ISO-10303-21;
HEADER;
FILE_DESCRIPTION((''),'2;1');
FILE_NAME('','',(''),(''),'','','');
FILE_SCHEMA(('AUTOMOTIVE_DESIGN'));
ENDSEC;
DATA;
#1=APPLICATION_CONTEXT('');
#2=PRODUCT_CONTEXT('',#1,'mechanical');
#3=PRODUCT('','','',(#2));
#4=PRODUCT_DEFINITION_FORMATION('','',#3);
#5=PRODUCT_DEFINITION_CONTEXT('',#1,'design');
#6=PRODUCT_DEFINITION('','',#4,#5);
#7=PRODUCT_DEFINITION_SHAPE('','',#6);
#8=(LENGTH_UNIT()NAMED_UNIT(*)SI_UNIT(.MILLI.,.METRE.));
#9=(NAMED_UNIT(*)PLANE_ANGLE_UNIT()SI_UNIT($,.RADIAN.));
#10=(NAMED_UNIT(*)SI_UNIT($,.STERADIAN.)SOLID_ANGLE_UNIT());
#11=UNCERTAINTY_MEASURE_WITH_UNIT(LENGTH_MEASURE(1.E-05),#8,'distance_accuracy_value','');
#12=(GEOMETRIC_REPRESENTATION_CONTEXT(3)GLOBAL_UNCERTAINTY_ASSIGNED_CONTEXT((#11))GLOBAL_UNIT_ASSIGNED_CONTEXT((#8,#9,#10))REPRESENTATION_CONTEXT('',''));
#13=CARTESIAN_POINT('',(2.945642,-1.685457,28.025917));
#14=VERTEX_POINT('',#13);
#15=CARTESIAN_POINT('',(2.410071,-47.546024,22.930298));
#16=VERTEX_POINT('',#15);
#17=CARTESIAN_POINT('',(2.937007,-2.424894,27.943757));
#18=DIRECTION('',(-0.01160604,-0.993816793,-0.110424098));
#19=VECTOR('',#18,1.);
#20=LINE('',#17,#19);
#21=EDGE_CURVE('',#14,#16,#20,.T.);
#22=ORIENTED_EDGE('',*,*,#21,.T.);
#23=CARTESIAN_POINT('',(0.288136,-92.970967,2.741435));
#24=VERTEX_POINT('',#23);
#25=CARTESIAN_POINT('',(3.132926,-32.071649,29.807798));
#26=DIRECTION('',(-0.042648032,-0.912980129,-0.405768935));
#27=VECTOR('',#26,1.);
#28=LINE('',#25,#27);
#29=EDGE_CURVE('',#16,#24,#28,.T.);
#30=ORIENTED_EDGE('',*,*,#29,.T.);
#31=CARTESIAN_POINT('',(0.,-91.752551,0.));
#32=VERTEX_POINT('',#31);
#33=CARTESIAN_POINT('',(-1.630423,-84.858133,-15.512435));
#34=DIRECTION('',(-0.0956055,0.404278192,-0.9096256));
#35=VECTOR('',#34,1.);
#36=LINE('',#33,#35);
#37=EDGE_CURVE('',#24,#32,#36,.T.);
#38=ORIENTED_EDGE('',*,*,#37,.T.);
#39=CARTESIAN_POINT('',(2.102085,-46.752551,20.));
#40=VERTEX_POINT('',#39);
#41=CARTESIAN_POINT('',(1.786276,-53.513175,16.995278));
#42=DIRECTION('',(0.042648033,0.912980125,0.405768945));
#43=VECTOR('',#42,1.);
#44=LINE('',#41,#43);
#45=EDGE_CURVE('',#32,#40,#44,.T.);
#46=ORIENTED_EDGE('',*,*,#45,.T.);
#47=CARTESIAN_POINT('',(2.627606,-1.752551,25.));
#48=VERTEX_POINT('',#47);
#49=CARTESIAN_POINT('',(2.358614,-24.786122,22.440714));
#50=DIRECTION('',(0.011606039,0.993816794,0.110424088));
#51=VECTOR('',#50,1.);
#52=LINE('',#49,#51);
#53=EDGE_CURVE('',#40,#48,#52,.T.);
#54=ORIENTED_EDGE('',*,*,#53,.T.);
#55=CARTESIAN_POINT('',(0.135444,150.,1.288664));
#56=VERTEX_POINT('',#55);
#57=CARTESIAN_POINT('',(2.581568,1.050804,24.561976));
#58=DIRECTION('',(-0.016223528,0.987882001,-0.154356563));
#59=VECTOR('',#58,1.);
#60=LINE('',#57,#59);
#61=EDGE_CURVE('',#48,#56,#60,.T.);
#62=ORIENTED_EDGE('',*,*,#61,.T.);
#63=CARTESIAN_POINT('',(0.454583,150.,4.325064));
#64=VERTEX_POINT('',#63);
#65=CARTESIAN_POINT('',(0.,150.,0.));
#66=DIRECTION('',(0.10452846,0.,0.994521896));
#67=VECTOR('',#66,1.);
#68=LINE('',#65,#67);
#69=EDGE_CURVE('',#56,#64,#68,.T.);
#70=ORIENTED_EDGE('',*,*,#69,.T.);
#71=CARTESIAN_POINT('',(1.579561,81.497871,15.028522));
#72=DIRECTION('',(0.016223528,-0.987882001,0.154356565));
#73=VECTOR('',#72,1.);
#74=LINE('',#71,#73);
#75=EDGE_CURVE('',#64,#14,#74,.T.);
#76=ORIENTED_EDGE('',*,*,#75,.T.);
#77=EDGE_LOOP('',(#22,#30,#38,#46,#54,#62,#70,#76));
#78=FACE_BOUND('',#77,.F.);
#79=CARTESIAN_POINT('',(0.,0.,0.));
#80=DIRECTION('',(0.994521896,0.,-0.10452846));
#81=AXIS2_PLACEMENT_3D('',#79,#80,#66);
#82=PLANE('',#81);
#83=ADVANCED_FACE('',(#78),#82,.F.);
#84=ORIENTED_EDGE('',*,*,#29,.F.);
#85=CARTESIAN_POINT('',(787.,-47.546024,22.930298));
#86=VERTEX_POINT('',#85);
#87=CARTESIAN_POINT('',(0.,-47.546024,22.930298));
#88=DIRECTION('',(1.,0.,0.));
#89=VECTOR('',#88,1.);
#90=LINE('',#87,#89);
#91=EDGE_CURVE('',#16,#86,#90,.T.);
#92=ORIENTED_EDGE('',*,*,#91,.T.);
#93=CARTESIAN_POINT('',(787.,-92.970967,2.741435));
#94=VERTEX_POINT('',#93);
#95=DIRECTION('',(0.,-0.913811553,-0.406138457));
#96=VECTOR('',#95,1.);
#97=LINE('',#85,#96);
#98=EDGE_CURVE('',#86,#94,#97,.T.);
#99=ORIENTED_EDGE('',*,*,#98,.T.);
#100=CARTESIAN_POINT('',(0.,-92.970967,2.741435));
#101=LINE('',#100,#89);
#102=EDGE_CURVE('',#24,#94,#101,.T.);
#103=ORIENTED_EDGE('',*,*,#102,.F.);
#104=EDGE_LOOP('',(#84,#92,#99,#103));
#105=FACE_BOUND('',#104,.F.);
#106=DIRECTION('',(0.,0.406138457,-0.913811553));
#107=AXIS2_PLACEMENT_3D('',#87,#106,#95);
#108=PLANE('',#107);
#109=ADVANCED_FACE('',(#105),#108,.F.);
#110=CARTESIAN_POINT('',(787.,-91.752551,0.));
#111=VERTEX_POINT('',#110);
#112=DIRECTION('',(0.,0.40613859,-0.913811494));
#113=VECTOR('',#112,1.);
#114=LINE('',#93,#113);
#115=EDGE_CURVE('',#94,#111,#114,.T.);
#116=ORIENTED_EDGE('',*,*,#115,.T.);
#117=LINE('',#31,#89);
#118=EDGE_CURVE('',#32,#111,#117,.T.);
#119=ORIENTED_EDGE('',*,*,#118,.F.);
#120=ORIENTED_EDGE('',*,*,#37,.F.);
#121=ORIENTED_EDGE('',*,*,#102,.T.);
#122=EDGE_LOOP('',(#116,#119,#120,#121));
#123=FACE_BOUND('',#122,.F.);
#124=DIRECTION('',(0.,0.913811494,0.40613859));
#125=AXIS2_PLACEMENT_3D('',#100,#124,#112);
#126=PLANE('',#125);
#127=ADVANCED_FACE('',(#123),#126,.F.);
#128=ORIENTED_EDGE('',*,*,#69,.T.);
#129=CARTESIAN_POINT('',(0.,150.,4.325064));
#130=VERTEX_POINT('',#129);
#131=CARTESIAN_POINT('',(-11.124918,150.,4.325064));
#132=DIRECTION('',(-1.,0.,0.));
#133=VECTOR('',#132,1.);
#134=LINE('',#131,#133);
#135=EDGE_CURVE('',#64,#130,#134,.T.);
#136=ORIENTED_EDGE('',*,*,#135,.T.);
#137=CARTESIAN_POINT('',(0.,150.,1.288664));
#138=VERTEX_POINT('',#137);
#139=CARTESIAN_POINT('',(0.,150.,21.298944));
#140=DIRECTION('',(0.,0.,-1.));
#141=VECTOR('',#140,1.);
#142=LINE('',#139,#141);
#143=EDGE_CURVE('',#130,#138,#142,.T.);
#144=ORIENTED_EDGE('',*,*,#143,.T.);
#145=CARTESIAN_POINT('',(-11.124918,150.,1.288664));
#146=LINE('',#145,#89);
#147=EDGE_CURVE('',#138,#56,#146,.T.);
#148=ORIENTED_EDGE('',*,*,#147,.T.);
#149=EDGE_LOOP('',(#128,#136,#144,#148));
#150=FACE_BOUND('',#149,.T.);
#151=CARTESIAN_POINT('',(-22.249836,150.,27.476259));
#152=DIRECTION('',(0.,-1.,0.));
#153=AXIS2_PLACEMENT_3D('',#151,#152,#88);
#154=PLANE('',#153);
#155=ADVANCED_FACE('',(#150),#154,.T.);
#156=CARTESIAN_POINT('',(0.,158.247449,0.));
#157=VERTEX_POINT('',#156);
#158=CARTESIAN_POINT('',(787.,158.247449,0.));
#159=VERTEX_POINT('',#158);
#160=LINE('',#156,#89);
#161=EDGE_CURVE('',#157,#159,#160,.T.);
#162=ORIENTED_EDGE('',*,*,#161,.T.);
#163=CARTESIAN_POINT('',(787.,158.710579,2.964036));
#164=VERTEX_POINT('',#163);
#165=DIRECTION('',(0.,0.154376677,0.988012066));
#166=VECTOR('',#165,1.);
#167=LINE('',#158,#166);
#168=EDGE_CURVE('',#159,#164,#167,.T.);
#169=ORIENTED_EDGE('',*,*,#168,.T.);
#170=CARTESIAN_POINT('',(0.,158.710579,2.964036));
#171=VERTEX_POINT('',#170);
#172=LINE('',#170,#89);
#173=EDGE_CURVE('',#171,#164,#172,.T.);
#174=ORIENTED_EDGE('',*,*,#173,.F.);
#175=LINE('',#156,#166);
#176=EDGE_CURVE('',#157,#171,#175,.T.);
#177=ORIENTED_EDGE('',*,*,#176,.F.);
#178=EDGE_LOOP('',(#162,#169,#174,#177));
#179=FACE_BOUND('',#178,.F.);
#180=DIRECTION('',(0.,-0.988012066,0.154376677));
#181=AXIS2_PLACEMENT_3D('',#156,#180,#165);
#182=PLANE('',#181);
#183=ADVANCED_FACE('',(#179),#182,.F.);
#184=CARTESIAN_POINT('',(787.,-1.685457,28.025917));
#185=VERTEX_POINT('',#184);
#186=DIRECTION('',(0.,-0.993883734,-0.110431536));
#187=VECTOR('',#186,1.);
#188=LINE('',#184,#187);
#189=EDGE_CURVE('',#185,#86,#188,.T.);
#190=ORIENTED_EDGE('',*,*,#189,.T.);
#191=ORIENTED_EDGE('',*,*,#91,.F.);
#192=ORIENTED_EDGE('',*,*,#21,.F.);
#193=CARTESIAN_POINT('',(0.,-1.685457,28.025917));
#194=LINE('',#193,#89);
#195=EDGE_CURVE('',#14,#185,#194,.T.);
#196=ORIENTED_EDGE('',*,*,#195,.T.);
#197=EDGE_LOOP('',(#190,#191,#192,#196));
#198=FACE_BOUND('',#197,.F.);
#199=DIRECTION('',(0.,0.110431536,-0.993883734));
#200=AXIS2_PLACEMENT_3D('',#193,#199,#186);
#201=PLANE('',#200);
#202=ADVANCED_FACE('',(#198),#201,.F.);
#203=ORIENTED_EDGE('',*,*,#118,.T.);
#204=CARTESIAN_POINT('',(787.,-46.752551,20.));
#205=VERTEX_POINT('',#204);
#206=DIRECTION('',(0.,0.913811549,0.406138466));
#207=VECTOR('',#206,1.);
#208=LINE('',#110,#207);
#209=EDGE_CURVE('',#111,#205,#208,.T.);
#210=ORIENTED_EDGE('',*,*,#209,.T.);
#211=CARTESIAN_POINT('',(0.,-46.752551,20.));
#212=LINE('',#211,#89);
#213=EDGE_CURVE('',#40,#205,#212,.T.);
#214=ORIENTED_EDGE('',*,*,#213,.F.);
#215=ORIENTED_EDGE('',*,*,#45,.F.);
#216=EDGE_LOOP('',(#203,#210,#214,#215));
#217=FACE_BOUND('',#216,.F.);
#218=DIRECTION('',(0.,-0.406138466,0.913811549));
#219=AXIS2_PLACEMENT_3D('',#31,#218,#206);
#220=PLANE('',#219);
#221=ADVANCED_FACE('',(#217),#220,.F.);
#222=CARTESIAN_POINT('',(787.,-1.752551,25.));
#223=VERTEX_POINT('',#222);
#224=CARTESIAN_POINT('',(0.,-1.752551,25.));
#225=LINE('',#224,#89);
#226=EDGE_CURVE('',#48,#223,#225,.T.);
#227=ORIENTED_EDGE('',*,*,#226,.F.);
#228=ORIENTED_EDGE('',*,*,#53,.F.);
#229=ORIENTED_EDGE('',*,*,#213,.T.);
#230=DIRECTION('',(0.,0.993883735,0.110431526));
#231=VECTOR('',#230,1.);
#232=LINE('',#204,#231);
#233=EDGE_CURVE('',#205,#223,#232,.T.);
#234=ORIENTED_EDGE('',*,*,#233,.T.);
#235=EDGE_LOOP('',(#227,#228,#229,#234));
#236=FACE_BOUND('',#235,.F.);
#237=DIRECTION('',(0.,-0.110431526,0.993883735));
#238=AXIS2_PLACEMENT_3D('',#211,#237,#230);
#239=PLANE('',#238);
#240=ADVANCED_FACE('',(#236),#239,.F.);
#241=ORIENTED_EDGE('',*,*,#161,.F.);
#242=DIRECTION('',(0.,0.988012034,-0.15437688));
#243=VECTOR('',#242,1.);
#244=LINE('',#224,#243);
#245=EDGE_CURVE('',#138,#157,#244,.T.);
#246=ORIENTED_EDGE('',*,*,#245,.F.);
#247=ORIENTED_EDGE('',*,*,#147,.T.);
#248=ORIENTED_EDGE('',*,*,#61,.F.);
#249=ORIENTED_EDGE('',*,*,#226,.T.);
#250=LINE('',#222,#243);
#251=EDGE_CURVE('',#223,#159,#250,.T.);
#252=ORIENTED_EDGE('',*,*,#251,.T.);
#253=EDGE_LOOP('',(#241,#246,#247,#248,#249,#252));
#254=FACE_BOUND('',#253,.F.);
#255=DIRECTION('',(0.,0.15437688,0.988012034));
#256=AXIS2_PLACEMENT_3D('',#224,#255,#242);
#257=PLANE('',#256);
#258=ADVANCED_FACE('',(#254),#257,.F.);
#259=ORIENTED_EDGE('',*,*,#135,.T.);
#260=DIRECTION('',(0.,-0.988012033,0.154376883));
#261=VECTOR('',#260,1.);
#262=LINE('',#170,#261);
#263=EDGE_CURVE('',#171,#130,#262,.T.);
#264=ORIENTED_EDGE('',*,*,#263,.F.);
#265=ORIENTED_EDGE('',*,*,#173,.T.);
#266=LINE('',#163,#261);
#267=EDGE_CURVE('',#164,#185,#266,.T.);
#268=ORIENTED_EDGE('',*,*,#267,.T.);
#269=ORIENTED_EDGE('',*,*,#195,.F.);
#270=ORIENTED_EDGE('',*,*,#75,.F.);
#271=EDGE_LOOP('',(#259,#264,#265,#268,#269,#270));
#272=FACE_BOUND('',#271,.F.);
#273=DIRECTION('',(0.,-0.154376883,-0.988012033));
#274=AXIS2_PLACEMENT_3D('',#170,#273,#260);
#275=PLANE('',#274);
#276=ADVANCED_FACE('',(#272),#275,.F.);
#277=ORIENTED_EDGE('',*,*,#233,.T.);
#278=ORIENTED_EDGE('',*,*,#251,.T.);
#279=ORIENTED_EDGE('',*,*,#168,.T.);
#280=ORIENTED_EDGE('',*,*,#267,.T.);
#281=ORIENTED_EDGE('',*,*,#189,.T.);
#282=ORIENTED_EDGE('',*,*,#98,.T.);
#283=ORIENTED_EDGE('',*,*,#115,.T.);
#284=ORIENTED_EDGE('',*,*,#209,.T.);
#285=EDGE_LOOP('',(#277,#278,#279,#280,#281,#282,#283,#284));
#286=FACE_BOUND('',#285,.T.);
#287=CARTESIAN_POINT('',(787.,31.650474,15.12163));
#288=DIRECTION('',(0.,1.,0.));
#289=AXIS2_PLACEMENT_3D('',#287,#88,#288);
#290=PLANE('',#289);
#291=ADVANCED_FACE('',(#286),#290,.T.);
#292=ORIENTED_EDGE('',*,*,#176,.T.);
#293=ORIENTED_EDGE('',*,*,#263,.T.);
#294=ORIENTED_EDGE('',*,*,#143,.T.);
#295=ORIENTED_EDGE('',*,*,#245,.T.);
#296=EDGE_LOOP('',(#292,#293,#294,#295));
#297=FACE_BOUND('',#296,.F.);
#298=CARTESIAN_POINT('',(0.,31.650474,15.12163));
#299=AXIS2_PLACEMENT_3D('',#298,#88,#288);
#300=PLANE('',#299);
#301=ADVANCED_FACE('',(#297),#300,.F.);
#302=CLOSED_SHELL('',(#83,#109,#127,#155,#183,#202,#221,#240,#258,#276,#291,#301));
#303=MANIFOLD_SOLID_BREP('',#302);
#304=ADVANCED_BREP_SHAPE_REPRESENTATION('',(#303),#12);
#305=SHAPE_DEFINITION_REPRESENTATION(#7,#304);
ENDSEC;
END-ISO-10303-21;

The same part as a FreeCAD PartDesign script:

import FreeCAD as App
import Part
import Sketcher
Q = App.Units.Quantity


def add_polygon(sketch, points):
    """Adds a closed chain of lines whose ends are joined by coincident constraints."""
    first, n = sketch.GeometryCount, len(points)
    for a, b in zip(points, points[1:] + points[:1]):
        sketch.addGeometry(Part.LineSegment(App.Vector(*a, 0), App.Vector(*b, 0)), False)
    for i in range(n):
        sketch.addConstraint(Sketcher.Constraint("Coincident", first + i, 2, first + (i + 1) % n, 1))

doc = App.newDocument("Part")
params = doc.addObject("Spreadsheet::Sheet", "Params")
for row, (alias, value) in enumerate([
    ("sketch1_length", "3.000001 mm"),
    ("pad1_length", "787 mm"),
    ("sketch2_length", "50 mm"),
    ("pocket1_length", "300 mm"),
], start=1):
    params.set(f"A{row}", alias)
    params.set(f"B{row}", "=" + value)
    params.setAlias(f"B{row}", alias)

body = doc.addObject("PartDesign::Body", "Body")

sketch1 = body.newObject("Sketcher::SketchObject", "Sketch")
sketch1.AttachmentSupport = (doc.getObject("YZ_Plane"), [""])
sketch1.MapMode = "FlatFace"
add_polygon(sketch1, [(-93, 2.7), (-91.8, 0), (-46.8, 20), (-1.8, 25), (158.2, 0), (158.7, 3), (-1.7, 28), (-47.5, 22.9)])
sketch1.addConstraint(Sketcher.Constraint("PointOnObject", 0, 2, -1))
sketch1.addConstraint(Sketcher.Constraint("PointOnObject", 3, 2, -1))
sketch1.addConstraint(Sketcher.Constraint("Perpendicular", 0, 1))
sketch1.addConstraint(Sketcher.Constraint("Perpendicular", 3, 4))
sketch1.addConstraint(Sketcher.Constraint("Perpendicular", 4, 5))
sketch1.addConstraint(Sketcher.Constraint("Parallel", 2, 6))
sketch1.addConstraint(Sketcher.Constraint("Parallel", 1, 7))
sketch1.addConstraint(Sketcher.Constraint("Equal", 0, 4))
sketch1.addConstraint(Sketcher.Constraint("Distance", 0, 3.000001))
sketch1.addConstraint(Sketcher.Constraint("DistanceY", -1, 1, 1, 2, 20.0))
sketch1.addConstraint(Sketcher.Constraint("DistanceY", -1, 1, 2, 2, 25.0))
sketch1.addConstraint(Sketcher.Constraint("DistanceX", 0, 2, 1, 2, 45.0))
sketch1.addConstraint(Sketcher.Constraint("DistanceX", 1, 2, 2, 2, 45.0))
sketch1.addConstraint(Sketcher.Constraint("DistanceX", 2, 2, 3, 2, 160.0))
sketch1.addConstraint(Sketcher.Constraint("DistanceY", -1, 1, 6, 2, 22.930298))
sketch1.addConstraint(Sketcher.Constraint("DistanceX", 0, 2, -1, 1, 91.752551))
sketch1.setExpression("Constraints[16]", "Params.sketch1_length")
pad1 = body.newObject("PartDesign::Pad", "Pad")
pad1.Profile = sketch1
pad1.setExpression("Length", "Params.pad1_length")

sketch2 = body.newObject("Sketcher::SketchObject", "Sketch001")
sketch2.AttachmentSupport = (doc.getObject("XZ_Plane"), [""])
sketch2.MapMode = "FlatFace"
add_polygon(sketch2, [(-50, 5), (0, 0), (5, 50), (-44, 55)])
sketch2.addConstraint(Sketcher.Constraint("Coincident", 0, 2, -1, 1))
sketch2.addConstraint(Sketcher.Constraint("Perpendicular", 0, 1))
sketch2.addConstraint(Sketcher.Constraint("Perpendicular", 1, 2))
sketch2.addConstraint(Sketcher.Constraint("Perpendicular", 2, 3))
sketch2.addConstraint(Sketcher.Constraint("Equal", 0, 1))
sketch2.addConstraint(Sketcher.Constraint("Angle", 0, Q("-6 deg")))
sketch2.addConstraint(Sketcher.Constraint("Distance", 0, 50.0))
sketch2.setExpression("Constraints[10]", "Params.sketch2_length")
pocket1 = body.newObject("PartDesign::Pocket", "Pocket")
pocket1.Profile = sketch2
pocket1.setExpression("Length", "Params.pocket1_length")
pocket1.Midplane = True

doc.recompute()
